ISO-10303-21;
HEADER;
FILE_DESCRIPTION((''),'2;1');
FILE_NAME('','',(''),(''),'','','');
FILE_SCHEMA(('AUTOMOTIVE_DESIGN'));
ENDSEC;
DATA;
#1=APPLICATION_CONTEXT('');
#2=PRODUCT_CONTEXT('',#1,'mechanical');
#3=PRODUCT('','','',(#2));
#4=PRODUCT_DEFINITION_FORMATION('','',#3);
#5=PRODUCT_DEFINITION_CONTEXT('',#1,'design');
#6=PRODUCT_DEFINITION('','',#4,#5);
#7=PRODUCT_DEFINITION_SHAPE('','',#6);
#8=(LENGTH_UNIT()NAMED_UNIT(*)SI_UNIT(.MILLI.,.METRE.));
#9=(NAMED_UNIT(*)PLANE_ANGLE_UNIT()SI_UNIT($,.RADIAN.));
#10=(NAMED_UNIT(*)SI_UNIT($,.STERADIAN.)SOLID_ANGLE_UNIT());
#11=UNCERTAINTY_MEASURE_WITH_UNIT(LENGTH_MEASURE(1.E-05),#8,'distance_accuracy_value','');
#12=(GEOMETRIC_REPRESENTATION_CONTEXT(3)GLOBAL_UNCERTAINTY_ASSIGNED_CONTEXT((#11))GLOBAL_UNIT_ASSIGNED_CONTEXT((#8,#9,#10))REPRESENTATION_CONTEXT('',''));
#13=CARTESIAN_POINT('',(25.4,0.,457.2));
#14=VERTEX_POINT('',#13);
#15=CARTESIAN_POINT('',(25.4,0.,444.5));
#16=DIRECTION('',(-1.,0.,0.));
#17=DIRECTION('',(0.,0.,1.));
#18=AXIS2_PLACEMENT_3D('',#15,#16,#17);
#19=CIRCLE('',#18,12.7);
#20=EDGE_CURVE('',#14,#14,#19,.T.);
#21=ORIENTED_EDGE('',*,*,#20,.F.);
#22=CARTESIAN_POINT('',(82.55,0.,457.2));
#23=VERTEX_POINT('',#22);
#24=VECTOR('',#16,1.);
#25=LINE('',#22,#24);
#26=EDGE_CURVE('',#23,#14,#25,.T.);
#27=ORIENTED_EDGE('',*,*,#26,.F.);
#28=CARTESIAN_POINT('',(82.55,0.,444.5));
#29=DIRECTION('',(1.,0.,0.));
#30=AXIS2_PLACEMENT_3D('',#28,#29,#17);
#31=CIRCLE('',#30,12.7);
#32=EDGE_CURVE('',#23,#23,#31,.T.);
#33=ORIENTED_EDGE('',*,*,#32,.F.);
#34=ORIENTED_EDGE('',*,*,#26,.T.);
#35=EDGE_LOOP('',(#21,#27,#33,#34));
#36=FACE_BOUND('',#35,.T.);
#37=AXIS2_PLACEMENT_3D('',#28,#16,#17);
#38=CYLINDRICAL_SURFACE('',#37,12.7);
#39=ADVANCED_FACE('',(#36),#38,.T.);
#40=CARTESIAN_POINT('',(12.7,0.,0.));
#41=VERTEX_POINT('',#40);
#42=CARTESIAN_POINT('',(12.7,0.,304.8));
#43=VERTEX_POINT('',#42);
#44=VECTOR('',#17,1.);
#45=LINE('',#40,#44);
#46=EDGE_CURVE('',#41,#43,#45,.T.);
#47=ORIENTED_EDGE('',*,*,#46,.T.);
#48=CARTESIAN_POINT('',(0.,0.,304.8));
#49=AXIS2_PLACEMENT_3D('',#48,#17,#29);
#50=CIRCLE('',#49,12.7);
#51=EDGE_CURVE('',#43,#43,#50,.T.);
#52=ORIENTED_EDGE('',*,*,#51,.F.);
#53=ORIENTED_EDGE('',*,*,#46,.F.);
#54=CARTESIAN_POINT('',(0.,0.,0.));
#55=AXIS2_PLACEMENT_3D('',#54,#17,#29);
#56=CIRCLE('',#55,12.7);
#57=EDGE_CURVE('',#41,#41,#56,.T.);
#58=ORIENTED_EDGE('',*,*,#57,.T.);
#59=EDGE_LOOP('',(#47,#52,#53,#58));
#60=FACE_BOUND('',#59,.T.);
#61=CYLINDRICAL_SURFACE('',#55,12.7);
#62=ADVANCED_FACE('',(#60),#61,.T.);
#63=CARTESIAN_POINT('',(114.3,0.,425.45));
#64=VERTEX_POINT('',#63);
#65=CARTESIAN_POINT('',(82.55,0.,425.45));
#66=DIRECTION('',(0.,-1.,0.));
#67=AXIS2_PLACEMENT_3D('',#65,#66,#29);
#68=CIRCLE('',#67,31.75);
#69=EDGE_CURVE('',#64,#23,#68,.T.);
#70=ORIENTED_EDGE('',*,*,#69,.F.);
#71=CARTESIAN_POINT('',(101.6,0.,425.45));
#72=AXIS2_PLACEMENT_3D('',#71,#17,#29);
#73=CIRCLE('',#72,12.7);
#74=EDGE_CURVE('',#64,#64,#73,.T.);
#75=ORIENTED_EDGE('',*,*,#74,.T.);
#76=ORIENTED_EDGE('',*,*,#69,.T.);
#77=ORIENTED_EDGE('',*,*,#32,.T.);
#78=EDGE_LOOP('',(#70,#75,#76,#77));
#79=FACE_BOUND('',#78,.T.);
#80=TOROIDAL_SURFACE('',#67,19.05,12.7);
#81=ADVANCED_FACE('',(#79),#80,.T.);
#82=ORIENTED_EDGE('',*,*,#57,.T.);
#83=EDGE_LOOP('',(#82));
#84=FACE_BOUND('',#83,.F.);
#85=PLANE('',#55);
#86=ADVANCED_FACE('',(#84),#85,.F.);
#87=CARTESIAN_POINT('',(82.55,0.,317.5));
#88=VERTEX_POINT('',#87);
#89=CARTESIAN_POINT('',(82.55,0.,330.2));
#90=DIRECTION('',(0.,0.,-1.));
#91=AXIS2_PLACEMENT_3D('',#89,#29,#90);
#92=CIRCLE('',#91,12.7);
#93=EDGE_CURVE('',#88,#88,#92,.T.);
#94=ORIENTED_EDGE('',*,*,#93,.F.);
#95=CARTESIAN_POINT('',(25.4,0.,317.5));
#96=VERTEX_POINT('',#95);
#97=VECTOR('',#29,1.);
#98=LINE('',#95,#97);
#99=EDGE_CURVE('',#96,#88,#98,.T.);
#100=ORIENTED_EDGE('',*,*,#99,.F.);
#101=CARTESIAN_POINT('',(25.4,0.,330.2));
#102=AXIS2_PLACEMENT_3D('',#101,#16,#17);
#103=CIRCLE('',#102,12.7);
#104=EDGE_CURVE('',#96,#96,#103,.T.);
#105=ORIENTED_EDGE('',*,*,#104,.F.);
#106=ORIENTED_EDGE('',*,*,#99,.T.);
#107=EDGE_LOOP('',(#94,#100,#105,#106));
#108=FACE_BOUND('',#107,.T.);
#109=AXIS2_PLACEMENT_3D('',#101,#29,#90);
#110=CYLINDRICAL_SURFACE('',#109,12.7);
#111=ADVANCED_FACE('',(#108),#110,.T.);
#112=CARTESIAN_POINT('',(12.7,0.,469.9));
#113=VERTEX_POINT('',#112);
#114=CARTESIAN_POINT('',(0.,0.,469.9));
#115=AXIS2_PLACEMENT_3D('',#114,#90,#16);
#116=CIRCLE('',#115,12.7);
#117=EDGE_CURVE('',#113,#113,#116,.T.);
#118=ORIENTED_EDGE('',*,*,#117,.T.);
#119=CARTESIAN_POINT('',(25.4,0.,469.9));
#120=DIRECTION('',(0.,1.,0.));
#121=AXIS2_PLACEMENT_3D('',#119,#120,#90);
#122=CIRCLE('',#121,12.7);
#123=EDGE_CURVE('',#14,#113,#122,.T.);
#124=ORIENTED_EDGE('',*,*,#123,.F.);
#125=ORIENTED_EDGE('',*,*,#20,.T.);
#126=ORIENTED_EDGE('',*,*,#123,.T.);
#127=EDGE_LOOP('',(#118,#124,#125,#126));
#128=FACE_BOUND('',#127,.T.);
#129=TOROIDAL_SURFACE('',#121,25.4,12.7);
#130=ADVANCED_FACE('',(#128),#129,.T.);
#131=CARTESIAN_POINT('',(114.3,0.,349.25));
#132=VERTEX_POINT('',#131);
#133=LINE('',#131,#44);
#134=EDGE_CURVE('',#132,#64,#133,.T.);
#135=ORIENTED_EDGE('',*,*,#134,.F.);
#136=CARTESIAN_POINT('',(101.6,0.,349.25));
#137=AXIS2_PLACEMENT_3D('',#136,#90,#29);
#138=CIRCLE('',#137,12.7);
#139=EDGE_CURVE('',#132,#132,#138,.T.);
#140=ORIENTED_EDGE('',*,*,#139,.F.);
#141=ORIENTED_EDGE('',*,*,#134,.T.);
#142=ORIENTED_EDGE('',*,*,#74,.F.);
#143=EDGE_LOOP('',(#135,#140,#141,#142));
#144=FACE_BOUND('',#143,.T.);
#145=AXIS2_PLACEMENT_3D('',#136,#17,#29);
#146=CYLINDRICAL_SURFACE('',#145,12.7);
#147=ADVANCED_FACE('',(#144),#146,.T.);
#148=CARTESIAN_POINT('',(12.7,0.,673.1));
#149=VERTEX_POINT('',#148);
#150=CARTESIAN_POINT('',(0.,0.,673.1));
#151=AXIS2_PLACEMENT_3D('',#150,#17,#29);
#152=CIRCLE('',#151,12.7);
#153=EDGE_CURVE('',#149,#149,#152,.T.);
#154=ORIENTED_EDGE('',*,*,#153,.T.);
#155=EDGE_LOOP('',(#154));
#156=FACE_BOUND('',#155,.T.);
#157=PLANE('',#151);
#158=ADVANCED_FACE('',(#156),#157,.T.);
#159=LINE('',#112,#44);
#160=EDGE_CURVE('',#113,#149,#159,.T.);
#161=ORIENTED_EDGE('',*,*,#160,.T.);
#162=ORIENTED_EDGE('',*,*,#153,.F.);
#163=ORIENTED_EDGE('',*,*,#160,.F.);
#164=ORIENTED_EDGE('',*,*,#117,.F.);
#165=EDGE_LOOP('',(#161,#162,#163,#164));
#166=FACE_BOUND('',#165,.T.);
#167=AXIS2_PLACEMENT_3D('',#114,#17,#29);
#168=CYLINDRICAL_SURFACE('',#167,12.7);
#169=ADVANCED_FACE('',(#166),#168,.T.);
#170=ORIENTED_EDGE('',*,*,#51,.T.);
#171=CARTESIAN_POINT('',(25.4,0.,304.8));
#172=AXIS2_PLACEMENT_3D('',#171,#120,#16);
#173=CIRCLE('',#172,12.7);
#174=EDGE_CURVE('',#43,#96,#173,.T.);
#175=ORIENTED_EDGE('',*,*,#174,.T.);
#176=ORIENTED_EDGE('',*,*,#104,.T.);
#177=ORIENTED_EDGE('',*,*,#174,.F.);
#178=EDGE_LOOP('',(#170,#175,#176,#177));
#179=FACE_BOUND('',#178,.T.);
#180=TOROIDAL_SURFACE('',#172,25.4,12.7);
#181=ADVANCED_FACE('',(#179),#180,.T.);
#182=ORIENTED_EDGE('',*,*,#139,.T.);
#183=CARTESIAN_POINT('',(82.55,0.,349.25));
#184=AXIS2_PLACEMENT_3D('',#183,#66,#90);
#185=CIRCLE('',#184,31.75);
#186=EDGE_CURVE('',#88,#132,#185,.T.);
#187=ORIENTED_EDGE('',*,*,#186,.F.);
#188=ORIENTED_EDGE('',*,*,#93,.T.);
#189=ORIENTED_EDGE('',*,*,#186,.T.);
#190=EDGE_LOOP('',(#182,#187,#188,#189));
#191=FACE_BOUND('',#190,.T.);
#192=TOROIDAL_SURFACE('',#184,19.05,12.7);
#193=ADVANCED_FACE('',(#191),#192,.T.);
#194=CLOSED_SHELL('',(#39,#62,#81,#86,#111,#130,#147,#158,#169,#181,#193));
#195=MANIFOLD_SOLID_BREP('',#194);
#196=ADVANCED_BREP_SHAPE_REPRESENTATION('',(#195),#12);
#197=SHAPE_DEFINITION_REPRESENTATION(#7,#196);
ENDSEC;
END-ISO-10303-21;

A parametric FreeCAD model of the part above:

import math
import FreeCAD as App
import Part
import Sketcher

V = App.Vector
Q = App.Units.Quantity

doc = App.newDocument("Part")
body = doc.addObject("PartDesign::Body", "Body")

# Sketch on XY plane
sketch1 = doc.addObject("Sketcher::SketchObject", "Sketch")
body.addObject(sketch1)
sketch1.AttachmentSupport = (doc.XY_Plane, [""])
sketch1.MapMode = "FlatFace"
sketch1.addGeometry(Part.Circle(V(0, 0, 0), V(0, 0, 1), 13), False)
sketch1.addConstraint([
    Sketcher.Constraint("Coincident", 0, 3, -1, 1),
    Sketcher.Constraint("Diameter", 0, Q("1 in")),
])

# Sketch on XZ plane
sketch2 = doc.addObject("Sketcher::SketchObject", "Sketch001")
body.addObject(sketch2)
sketch2.AttachmentSupport = (doc.XZ_Plane, [""])
sketch2.MapMode = "FlatFace"
sketch2.addGeometry([
    Part.LineSegment(V(0, 0, 0), V(0, 305, 0)),  # 0
    Part.ArcOfCircle(Part.Circle(V(25, 305, 0), V(0, 0, 1), 25), math.radians(90), math.radians(180)),  # 1
    Part.LineSegment(V(25, 330, 0), V(83, 330, 0)),  # 2
    Part.ArcOfCircle(Part.Circle(V(83, 349, 0), V(0, 0, 1), 19), math.radians(-90), math.radians(0)),  # 3
    Part.LineSegment(V(102, 349, 0), V(102, 425, 0)),  # 4
    Part.ArcOfCircle(Part.Circle(V(83, 425, 0), V(0, 0, 1), 19), math.radians(0), math.radians(90)),  # 5
    Part.LineSegment(V(83, 444, 0), V(25, 444, 0)),  # 6
    Part.ArcOfCircle(Part.Circle(V(25, 470, 0), V(0, 0, 1), 25), math.radians(180), math.radians(270)),  # 7
    Part.LineSegment(V(0, 470, 0), V(0, 673, 0)),  # 8
], False)
sketch2.addConstraint([
    Sketcher.Constraint("Tangent", 0, 2, 1, 2),
    Sketcher.Constraint("Tangent", 1, 1, 2, 1),
    Sketcher.Constraint("Tangent", 2, 2, 3, 1),
    Sketcher.Constraint("Tangent", 3, 2, 4, 1),
    Sketcher.Constraint("Tangent", 4, 2, 5, 1),
    Sketcher.Constraint("Tangent", 5, 2, 6, 1),
    Sketcher.Constraint("Tangent", 6, 2, 7, 2),
    Sketcher.Constraint("Tangent", 7, 1, 8, 1),
    Sketcher.Constraint("Vertical", 0),
    Sketcher.Constraint("Horizontal", 2),
    Sketcher.Constraint("Vertical", 4),
    Sketcher.Constraint("Horizontal", 6),
    Sketcher.Constraint("Vertical", 8),
    Sketcher.Constraint("Coincident", 0, 1, -1, 1),
    Sketcher.Constraint("Equal", 3, 5),
    Sketcher.Constraint("Equal", 1, 7),
    Sketcher.Constraint("PointOnObject", 7, 1, -2),
    Sketcher.Constraint("Radius", 1, Q("1 in")),
    Sketcher.Constraint("DistanceY", 0, 1, 0, 2, Q("12 in")),
    Sketcher.Constraint("DistanceY", 4, 1, 4, 2, Q("3 in")),
    Sketcher.Constraint("DistanceY", 8, 1, 8, 2, Q("8 in")),
    Sketcher.Constraint("Radius", 3, Q("0.75 in")),
    Sketcher.Constraint("DistanceX", -1, 1, 3, 2, Q("4 in")),
])
doc.recompute()

additivepipe = doc.addObject("PartDesign::AdditivePipe", "AdditivePipe")
body.addObject(additivepipe)
additivepipe.Profile = sketch1
additivepipe.Spine = (sketch2, ["Edge1", "Edge2", "Edge3", "Edge4", "Edge5", "Edge6", "Edge7", "Edge8", "Edge9"])

doc.recompute()
